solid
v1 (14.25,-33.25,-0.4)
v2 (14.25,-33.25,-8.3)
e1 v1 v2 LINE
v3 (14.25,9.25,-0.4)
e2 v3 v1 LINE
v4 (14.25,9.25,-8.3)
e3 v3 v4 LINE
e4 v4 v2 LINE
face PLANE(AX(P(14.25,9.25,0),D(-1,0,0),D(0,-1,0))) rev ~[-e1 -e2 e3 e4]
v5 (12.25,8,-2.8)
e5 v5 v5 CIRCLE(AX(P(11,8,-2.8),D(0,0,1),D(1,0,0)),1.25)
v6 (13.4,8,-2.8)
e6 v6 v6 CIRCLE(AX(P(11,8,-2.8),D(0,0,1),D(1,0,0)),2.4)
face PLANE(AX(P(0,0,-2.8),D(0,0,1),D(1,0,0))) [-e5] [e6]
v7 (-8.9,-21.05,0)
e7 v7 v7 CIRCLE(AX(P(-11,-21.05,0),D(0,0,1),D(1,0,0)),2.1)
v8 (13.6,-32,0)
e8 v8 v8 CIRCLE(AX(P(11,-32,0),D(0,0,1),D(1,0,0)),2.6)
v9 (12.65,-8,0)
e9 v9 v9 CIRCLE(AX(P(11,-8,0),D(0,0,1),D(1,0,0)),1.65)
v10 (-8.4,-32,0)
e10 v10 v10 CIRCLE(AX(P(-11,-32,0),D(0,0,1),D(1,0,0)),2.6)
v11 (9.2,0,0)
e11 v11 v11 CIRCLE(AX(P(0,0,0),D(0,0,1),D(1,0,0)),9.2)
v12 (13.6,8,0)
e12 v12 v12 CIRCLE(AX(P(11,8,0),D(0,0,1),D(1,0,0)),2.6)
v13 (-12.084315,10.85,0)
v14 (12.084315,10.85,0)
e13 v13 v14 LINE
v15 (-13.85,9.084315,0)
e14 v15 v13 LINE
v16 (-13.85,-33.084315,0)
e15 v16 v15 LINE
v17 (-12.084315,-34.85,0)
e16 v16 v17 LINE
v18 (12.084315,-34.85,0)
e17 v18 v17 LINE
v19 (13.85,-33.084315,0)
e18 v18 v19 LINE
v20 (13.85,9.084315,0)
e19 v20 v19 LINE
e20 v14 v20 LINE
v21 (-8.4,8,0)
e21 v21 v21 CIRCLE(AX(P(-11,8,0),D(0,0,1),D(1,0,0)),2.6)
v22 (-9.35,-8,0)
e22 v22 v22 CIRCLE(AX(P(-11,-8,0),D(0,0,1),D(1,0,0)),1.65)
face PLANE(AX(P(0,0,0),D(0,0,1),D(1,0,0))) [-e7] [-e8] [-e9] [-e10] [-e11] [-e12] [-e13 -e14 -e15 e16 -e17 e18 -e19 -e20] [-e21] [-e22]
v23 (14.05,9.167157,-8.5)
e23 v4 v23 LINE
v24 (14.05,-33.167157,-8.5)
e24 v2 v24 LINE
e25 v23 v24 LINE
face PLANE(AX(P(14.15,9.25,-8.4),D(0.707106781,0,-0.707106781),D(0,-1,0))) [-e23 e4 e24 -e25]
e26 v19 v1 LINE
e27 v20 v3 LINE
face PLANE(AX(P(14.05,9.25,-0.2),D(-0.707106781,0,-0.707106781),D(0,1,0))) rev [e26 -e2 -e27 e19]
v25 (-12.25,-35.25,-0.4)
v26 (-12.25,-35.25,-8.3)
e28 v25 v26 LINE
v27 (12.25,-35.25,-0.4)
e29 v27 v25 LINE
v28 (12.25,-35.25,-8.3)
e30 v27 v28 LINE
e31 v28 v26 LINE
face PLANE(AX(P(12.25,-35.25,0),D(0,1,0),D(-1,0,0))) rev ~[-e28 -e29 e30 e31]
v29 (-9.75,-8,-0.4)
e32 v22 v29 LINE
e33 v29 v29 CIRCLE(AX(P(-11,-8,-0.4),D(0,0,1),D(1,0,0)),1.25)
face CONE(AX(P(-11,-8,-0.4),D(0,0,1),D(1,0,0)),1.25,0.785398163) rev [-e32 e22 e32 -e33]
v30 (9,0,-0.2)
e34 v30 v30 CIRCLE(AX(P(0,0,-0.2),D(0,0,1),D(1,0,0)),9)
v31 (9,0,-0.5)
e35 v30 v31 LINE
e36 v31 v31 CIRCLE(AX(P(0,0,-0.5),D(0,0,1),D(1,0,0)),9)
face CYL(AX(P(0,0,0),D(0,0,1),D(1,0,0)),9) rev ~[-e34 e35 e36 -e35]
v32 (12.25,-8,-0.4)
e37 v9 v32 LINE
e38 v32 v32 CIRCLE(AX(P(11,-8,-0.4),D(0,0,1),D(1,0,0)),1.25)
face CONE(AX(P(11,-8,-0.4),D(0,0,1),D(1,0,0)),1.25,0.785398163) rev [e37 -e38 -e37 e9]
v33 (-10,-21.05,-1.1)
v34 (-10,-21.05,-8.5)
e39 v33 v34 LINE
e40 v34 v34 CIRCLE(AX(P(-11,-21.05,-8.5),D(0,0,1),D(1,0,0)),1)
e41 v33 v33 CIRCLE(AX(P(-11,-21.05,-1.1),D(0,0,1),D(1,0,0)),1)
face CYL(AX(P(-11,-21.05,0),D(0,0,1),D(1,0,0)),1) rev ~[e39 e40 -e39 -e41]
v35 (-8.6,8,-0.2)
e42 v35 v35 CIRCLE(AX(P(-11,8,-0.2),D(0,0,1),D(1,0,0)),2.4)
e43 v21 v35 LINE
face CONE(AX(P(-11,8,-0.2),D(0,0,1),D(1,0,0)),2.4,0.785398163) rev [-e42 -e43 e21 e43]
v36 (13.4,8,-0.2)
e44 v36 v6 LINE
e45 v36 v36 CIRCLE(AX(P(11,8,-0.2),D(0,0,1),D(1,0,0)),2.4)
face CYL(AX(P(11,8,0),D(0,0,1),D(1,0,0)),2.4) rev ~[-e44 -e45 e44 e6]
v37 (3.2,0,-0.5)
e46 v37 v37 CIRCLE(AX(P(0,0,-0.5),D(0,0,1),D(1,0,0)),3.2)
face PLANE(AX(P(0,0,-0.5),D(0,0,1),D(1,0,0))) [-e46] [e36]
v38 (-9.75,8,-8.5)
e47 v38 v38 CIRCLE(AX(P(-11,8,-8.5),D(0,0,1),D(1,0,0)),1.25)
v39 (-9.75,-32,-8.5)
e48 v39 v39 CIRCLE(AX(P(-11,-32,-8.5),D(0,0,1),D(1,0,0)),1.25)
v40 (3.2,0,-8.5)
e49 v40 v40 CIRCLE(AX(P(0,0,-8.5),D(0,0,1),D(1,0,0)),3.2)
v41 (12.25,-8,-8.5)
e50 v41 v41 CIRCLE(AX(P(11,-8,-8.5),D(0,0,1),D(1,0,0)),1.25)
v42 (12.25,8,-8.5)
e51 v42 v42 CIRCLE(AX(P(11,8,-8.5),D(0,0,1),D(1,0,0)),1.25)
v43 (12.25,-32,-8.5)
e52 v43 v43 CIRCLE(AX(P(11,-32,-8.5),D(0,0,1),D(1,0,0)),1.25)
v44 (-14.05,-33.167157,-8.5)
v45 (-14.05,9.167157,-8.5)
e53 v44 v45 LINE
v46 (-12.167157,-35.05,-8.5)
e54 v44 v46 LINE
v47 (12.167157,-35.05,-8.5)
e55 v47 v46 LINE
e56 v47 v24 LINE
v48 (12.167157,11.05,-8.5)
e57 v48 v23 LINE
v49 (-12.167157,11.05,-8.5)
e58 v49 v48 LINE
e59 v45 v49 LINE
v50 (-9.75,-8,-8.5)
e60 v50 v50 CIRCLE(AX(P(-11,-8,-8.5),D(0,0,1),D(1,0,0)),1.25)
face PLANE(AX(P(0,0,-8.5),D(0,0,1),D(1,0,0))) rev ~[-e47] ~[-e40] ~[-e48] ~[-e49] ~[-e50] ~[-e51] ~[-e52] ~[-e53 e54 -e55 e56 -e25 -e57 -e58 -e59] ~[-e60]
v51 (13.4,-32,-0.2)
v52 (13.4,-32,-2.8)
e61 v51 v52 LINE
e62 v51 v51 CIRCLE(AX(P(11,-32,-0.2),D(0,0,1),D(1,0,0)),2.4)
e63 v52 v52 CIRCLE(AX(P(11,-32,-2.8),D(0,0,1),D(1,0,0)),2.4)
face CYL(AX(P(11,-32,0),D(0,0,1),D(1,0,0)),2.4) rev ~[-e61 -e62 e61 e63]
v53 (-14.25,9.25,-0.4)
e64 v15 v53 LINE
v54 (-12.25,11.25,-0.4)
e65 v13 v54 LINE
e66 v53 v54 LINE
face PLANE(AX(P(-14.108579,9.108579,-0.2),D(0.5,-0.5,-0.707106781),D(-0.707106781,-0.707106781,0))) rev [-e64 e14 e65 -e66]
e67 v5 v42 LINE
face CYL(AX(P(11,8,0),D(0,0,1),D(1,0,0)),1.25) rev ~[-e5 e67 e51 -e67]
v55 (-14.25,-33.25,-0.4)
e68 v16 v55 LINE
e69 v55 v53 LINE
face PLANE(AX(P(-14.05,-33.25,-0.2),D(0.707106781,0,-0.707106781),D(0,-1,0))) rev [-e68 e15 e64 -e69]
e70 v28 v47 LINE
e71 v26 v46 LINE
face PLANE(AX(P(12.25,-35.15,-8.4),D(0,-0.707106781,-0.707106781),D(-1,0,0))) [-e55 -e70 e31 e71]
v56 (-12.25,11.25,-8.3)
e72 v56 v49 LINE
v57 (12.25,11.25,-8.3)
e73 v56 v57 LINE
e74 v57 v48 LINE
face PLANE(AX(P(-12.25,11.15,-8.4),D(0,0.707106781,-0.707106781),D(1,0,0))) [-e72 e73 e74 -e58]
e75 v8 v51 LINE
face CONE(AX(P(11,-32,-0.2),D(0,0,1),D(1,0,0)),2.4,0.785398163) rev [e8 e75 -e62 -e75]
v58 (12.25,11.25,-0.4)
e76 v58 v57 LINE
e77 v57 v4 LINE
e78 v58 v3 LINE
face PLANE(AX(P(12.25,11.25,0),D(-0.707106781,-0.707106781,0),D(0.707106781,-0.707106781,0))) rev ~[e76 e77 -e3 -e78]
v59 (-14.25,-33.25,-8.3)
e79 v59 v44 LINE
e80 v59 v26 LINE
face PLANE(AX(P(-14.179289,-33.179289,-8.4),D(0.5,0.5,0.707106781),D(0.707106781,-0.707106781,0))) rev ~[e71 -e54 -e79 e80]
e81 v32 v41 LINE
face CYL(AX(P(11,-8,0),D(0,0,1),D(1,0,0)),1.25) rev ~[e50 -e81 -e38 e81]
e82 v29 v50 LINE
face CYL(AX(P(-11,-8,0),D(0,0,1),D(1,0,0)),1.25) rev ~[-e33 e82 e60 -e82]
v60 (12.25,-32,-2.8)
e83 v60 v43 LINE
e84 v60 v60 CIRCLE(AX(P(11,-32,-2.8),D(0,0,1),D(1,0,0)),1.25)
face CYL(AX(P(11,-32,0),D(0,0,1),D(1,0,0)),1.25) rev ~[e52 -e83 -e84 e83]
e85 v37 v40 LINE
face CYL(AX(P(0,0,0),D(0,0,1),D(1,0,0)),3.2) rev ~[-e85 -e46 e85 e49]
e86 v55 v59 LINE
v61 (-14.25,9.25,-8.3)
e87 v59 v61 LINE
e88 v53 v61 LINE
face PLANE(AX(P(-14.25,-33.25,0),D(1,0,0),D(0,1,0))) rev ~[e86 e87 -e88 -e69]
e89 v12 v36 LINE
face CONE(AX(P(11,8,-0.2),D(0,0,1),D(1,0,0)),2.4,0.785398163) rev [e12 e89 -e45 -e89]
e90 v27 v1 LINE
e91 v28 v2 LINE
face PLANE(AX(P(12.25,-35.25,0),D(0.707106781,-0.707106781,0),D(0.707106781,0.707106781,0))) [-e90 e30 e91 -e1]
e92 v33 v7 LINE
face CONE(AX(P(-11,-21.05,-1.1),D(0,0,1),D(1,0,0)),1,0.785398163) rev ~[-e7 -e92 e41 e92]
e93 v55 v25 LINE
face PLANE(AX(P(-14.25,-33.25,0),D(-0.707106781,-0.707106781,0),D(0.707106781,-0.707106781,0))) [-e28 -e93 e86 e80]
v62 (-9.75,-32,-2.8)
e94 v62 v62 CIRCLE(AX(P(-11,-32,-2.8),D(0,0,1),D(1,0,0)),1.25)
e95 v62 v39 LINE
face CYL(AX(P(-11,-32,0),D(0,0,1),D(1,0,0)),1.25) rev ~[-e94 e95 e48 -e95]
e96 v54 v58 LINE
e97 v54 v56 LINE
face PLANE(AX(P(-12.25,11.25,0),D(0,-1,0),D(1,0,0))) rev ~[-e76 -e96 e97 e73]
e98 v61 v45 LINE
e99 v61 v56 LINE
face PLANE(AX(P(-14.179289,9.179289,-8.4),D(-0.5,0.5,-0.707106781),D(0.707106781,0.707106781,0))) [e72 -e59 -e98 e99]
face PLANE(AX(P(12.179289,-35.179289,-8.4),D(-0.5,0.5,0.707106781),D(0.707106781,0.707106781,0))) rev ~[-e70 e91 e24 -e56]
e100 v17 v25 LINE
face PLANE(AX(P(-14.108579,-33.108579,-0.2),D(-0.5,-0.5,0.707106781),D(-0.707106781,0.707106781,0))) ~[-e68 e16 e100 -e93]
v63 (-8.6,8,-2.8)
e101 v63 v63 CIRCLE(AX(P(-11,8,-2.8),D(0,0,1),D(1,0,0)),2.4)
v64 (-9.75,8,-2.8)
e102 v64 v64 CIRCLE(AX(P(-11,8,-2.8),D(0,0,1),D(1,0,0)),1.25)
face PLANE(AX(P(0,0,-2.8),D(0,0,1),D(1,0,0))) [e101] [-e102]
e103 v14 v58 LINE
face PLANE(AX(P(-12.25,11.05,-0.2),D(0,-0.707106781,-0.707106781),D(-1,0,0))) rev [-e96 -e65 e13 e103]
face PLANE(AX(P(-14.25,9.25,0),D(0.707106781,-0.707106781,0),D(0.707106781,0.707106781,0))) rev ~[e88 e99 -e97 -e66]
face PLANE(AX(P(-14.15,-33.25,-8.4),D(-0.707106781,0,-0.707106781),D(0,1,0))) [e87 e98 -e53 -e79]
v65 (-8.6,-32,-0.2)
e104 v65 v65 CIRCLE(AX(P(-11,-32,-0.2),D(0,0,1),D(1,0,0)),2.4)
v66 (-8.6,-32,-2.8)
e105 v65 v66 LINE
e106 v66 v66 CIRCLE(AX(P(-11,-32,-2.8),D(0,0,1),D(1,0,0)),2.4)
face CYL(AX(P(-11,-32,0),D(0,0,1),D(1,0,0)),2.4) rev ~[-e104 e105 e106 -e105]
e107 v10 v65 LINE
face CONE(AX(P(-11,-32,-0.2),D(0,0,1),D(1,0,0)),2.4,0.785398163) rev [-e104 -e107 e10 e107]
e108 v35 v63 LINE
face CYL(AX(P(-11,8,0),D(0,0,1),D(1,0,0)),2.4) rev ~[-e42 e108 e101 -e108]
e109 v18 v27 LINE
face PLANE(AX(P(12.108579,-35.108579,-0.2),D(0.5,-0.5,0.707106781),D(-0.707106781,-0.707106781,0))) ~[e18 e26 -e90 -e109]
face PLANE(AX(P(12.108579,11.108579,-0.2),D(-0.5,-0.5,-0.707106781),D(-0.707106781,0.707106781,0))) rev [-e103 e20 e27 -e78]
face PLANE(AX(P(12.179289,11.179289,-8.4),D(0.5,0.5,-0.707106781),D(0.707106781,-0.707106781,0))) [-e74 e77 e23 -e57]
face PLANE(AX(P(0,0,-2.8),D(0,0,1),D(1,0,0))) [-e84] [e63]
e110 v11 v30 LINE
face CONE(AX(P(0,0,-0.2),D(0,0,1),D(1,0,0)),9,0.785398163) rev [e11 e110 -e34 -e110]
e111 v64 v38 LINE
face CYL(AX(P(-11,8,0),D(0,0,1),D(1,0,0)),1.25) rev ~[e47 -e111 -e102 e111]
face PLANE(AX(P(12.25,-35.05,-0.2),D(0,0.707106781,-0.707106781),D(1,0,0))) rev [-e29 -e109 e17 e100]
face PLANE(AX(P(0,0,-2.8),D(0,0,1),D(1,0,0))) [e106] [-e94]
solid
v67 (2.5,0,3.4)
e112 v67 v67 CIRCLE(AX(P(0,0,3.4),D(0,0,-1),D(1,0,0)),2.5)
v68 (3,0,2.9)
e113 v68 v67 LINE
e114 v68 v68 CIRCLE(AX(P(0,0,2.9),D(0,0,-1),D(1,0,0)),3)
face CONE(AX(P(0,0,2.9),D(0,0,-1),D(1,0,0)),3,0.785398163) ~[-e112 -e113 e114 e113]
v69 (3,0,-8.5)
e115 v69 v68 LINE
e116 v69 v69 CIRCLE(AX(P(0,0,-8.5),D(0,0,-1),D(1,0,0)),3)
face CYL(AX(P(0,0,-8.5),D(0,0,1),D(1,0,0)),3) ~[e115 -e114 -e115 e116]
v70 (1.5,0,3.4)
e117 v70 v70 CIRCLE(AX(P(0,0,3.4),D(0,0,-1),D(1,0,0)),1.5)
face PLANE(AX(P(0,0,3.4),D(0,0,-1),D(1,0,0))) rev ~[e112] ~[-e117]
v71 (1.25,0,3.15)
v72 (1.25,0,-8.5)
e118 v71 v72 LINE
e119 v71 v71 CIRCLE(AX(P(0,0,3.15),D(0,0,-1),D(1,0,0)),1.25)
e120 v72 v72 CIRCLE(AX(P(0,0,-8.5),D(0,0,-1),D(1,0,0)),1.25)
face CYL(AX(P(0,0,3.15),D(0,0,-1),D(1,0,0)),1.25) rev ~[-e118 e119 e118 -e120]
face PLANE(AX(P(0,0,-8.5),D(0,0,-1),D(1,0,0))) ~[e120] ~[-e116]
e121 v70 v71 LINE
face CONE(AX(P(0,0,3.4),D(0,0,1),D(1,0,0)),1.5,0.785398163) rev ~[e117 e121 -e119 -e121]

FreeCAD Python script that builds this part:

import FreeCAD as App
import Part
import Sketcher

V = App.Vector


def edges_at(feature, points):
    """Names of the edges that pass closest to the given points."""
    edges = feature.Shape.Edges
    near = lambda p: min(range(len(edges)), key=lambda i: edges[i].distToShape(Part.Vertex(*p))[0])
    return sorted({f"Edge{near(p) + 1}" for p in points})

doc = App.newDocument("Part")
body = doc.addObject("PartDesign::Body", "Body")
body.AllowCompound = True

# Sketch on XY plane
sketch1 = body.newObject("Sketcher::SketchObject", "Sketch")
sketch1.AttachmentSupport = (doc.getObject("XY_Plane"), [""])
sketch1.MapMode = "FlatFace"
sketch1.addGeometry([
    Part.LineSegment(V(12.2, 11.2, 0), V(-12.2, 11.2, 0)),  # 0
    Part.LineSegment(V(-12.2, 11.2, 0), V(-14.2, 9.2, 0)),  # 1
    Part.LineSegment(V(-14.2, 9.2, 0), V(-14.2, -33.2, 0)),  # 2
    Part.LineSegment(V(-14.2, -33.2, 0), V(-12.2, -35.2, 0)),  # 3
    Part.LineSegment(V(-12.2, -35.2, 0), V(12.2, -35.2, 0)),  # 4
    Part.LineSegment(V(12.2, -35.2, 0), V(14.2, -33.2, 0)),  # 5
    Part.LineSegment(V(14.2, -33.2, 0), V(14.2, 9.2, 0)),  # 6
    Part.LineSegment(V(14.2, 9.2, 0), V(12.2, 11.2, 0)),  # 7
    Part.Circle(V(-11, -32, 0), V(0, 0, 1), 1.2),  # 8
    Part.Circle(V(-11, -21.1, 0), V(0, 0, 1), 1),  # 9
    Part.Circle(V(11, -32, 0), V(0, 0, 1), 1.2),  # 10
    Part.Circle(V(-11, -8, 0), V(0, 0, 1), 1.2),  # 11
    Part.Circle(V(-11, 8, 0), V(0, 0, 1), 1.2),  # 12
    Part.Circle(V(11, -8, 0), V(0, 0, 1), 1.2),  # 13
    Part.Circle(V(0, 0, 0), V(0, 0, 1), 3.2),  # 14
    Part.Circle(V(11, 8, 0), V(0, 0, 1), 1.2),  # 15
], False)
sketch1.addConstraint([
    Sketcher.Constraint("Coincident", 0, 2, 1, 1),
    Sketcher.Constraint("Coincident", 1, 2, 2, 1),
    Sketcher.Constraint("Coincident", 2, 2, 3, 1),
    Sketcher.Constraint("Coincident", 3, 2, 4, 1),
    Sketcher.Constraint("Coincident", 4, 2, 5, 1),
    Sketcher.Constraint("Coincident", 5, 2, 6, 1),
    Sketcher.Constraint("Coincident", 6, 2, 7, 1),
    Sketcher.Constraint("Coincident", 7, 2, 0, 1),
    Sketcher.Constraint("Horizontal", 0),
    Sketcher.Constraint("Vertical", 2),
    Sketcher.Constraint("Horizontal", 4),
    Sketcher.Constraint("Vertical", 6),
    Sketcher.Constraint("Coincident", 14, 3, -1, 1),
    Sketcher.Constraint("Equal", 8, 10),
    Sketcher.Constraint("Equal", 10, 11),
    Sketcher.Constraint("Equal", 11, 12),
    Sketcher.Constraint("Equal", 12, 13),
    Sketcher.Constraint("Equal", 13, 15),
    Sketcher.Constraint("Symmetric", 12, 3, 13, 3, -1, 1),
    Sketcher.Constraint("Symmetric", 11, 3, 15, 3, -1, 1),
    Sketcher.Constraint("Symmetric", 8, 3, 10, 3, -2),
    Sketcher.Constraint("Symmetric", 11, 3, 13, 3, -2),
    Sketcher.Constraint("Symmetric", 2, 2, 5, 2, -2),
    Sketcher.Constraint("Perpendicular", 1, 3),
    Sketcher.Constraint("Perpendicular", 3, 5),
    Sketcher.Constraint("Perpendicular", 5, 7),
    Sketcher.Constraint("Horizontal", 1, 2, 6, 2),
    Sketcher.Constraint("Vertical", 8, 3, 9, 3),
    Sketcher.Constraint("Vertical", 9, 3, 11, 3),
    Sketcher.Constraint("Vertical", 0, 2, 3, 2),
    Sketcher.Constraint("Vertical", 4, 2, 7, 2),
    Sketcher.Constraint("Diameter", 9, 2.0),
    Sketcher.Constraint("Diameter", 8, 2.5),
    Sketcher.Constraint("Diameter", 14, 6.4),
    Sketcher.Constraint("DistanceY", 11, 3, -1, 1, 8.0),
    Sketcher.Constraint("DistanceX", 8, 3, 10, 3, 22.0),
    Sketcher.Constraint("DistanceY", 8, 3, 12, 3, 40.0),
    Sketcher.Constraint("DistanceX", 1, 2, 0, 2, 2.0),
    Sketcher.Constraint("DistanceY", 3, 2, 9, 3, 14.2),
    Sketcher.Constraint("DistanceY", -1, 1, 0, 2, 11.25),
    Sketcher.Constraint("DistanceX", 0, 2, 0, 1, 24.5),
    Sketcher.Constraint("DistanceY", 2, 2, 2, 1, 42.5),
])
pad1 = body.newObject("PartDesign::Pad", "Pad")
pad1.Profile = sketch1
pad1.Length = 8.5
pad1.Reversed = True
doc.recompute()

chamfer = body.newObject("PartDesign::Chamfer", "Chamfer")
chamfer.Base = (pad1, edges_at(pad1, [(-12, -21.05, 0)]))
chamfer.Size = 1.1

# Sketch on XY plane
sketch2 = body.newObject("Sketcher::SketchObject", "Sketch001")
sketch2.AttachmentSupport = (doc.getObject("XY_Plane"), [""])
sketch2.MapMode = "FlatFace"
sketch2.addGeometry([
    Part.Circle(V(-11, 8, 0), V(0, 0, 1), 2.4),
    Part.Circle(V(11, 8, 0), V(0, 0, 1), 2.4),
    Part.Circle(V(11, -32, 0), V(0, 0, 1), 2.4),
    Part.Circle(V(-11, -32, 0), V(0, 0, 1), 2.4),
], False)
sketch2.addConstraint([
    Sketcher.Constraint("Equal", 0, 1),
    Sketcher.Constraint("Equal", 1, 2),
    Sketcher.Constraint("Equal", 2, 3),
    Sketcher.Constraint("Symmetric", 0, 3, 1, 3, -2),
    Sketcher.Constraint("Symmetric", 2, 3, 3, 3, -2),
    Sketcher.Constraint("Vertical", 1, 3, 2, 3),
    Sketcher.Constraint("Diameter", 0, 4.8),
    Sketcher.Constraint("DistanceX", 0, 3, -1, 1, 11.0),
    Sketcher.Constraint("DistanceY", -1, 1, 0, 3, 8.0),
    Sketcher.Constraint("DistanceY", 2, 3, -1, 1, 32.0),
])
pocket1 = body.newObject("PartDesign::Pocket", "Pocket")
pocket1.Profile = sketch2
pocket1.Length = 2.8

# Sketch on XY plane
sketch3 = body.newObject("Sketcher::SketchObject", "Sketch002")
sketch3.AttachmentSupport = (doc.getObject("XY_Plane"), [""])
sketch3.MapMode = "FlatFace"
sketch3.addGeometry(Part.Circle(V(0, 0, 0), V(0, 0, 1), 9), False)
sketch3.addConstraint([
    Sketcher.Constraint("Coincident", 0, 3, -1, 1),
    Sketcher.Constraint("Diameter", 0, 18.0),
])
pocket2 = body.newObject("PartDesign::Pocket", "Pocket001")
pocket2.Profile = sketch3
pocket2.Length = 0.5
doc.recompute()

chamfer2 = body.newObject("PartDesign::Chamfer", "Chamfer001")
chamfer2.Base = (pocket2, edges_at(pocket2, [
    (-14.25, -12, 0),
    (-13.25, 10.25, 0),
    (0, 11.25, 0),
    (13.25, 10.25, 0),
    (14.25, -12, 0),
    (13.25, -34.25, 0),
    (0, -35.25, 0),
    (-13.25, -34.25, 0),
    (-12.25, -8, 0),
    (9.75, -8, 0),
]))
chamfer2.Size = 0.4
doc.recompute()

chamfer3 = body.newObject("PartDesign::Chamfer", "Chamfer002")
chamfer3.Base = (chamfer2, edges_at(chamfer2, [
    (-13.4, 8, 0),
    (8.6, 8, 0),
    (-9, 0, 0),
    (8.6, -32, 0),
    (-13.4, -32, 0),
    (-14.25, -12, -8.5),
    (-13.25, -34.25, -8.5),
    (0, -35.25, -8.5),
    (13.25, -34.25, -8.5),
    (14.25, -12, -8.5),
    (13.25, 10.25, -8.5),
    (0, 11.25, -8.5),
    (-13.25, 10.25, -8.5),
]))
chamfer3.Size = 0.2

# Sketch on XZ plane
sketch4 = body.newObject("Sketcher::SketchObject", "Sketch003")
sketch4.AttachmentSupport = (doc.getObject("XZ_Plane"), [""])
sketch4.MapMode = "FlatFace"
sketch4.addGeometry([
    Part.LineSegment(V(3, -8.5, 0), V(1.25, -8.5, 0)),  # 0
    Part.LineSegment(V(1.25, -8.5, 0), V(1.25, 3.15, 0)),  # 1
    Part.LineSegment(V(1.25, 3.15, 0), V(1.5, 3.4, 0)),  # 2
    Part.LineSegment(V(1.5, 3.4, 0), V(2.5, 3.4, 0)),  # 3
    Part.LineSegment(V(2.5, 3.4, 0), V(3, 2.9, 0)),  # 4
    Part.LineSegment(V(3, 2.9, 0), V(3, -8.5, 0)),  # 5
], False)
sketch4.addConstraint([
    Sketcher.Constraint("Coincident", 0, 2, 1, 1),
    Sketcher.Constraint("Coincident", 1, 2, 2, 1),
    Sketcher.Constraint("Coincident", 2, 2, 3, 1),
    Sketcher.Constraint("Coincident", 3, 2, 4, 1),
    Sketcher.Constraint("Coincident", 4, 2, 5, 1),
    Sketcher.Constraint("Coincident", 5, 2, 0, 1),
    Sketcher.Constraint("Horizontal", 0),
    Sketcher.Constraint("Vertical", 1),
    Sketcher.Constraint("Horizontal", 3),
    Sketcher.Constraint("Vertical", 5),
    Sketcher.Constraint("Perpendicular", 2, 4),
    Sketcher.Constraint("DistanceY", -1, 1, 2, 2, 3.4),
    Sketcher.Constraint("DistanceX", -1, 1, 3, 2, 2.5),
    Sketcher.Constraint("DistanceX", 3, 2, 4, 2, 0.5),
    Sketcher.Constraint("DistanceY", 4, 2, 3, 2, 0.5),
    Sketcher.Constraint("DistanceX", 3, 1, 3, 2, 1.0),
    Sketcher.Constraint("DistanceX", 1, 2, 2, 2, 0.25),
    Sketcher.Constraint("DistanceY", 5, 2, 5, 1, 11.4),
])
revolution = body.newObject("PartDesign::Revolution", "Revolution")
revolution.Profile = sketch4
revolution.ReferenceAxis = (sketch4, ["V_Axis"])
revolution.Angle = 360

doc.recompute()
